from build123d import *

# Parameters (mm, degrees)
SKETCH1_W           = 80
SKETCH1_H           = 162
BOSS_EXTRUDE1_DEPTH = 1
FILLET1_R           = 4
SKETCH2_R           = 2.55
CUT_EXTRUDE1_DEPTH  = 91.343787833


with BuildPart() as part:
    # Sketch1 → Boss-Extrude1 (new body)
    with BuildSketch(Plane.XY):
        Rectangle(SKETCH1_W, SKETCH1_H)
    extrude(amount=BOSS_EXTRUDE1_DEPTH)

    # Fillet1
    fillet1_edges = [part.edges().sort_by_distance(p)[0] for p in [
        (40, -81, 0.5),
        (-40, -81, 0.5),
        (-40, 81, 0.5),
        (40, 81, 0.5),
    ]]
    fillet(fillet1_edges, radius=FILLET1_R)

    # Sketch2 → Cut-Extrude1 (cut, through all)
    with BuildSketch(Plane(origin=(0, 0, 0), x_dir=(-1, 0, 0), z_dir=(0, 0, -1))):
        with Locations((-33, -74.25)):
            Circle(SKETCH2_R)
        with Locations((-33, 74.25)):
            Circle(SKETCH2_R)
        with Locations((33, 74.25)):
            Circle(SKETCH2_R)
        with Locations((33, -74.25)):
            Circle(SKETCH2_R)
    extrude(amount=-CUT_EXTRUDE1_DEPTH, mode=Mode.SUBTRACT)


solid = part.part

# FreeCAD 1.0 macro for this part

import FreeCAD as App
import Part
import Sketcher
Q = App.Units.Quantity


def edges_at(feature, points):
    """Names of the edges that pass closest to the given points."""
    edges = feature.Shape.Edges
    near = lambda p: min(range(len(edges)), key=lambda i: edges[i].distToShape(Part.Vertex(*p))[0])
    return sorted({f"Edge{near(p) + 1}" for p in points})


def add_polygon(sketch, points):
    """Adds a closed chain of lines whose ends are joined by coincident constraints."""
    first, n = sketch.GeometryCount, len(points)
    for a, b in zip(points, points[1:] + points[:1]):
        sketch.addGeometry(Part.LineSegment(App.Vector(*a, 0), App.Vector(*b, 0)), False)
    for i in range(n):
        sketch.addConstraint(Sketcher.Constraint("Coincident", first + i, 2, first + (i + 1) % n, 1))

doc = App.newDocument("Part")
body = doc.addObject("PartDesign::Body", "Body")

sketch1 = doc.addObject("Sketcher::SketchObject", "Sketch")
body.addObject(sketch1)
sketch1.AttachmentSupport = (doc.XY_Plane, [""])
sketch1.MapMode = "FlatFace"
add_polygon(sketch1, [(-40, 81), (-40, -81), (40, -81), (40, 81)])
sketch1.addConstraint([
    Sketcher.Constraint("Vertical", 0),
    Sketcher.Constraint("Horizontal", 1),
    Sketcher.Constraint("Vertical", 2),
    Sketcher.Constraint("Horizontal", 3),
    Sketcher.Constraint("Symmetric", 0, 2, 2, 2, -1, 1),
    Sketcher.Constraint("DistanceX", 1, 1, 1, 2, Q("80 mm")),
    Sketcher.Constraint("DistanceY", 0, 2, 0, 1, Q("162 mm")),
])
pad1 = doc.addObject("PartDesign::Pad", "Pad")
body.addObject(pad1)
pad1.Profile = sketch1
pad1.Length = 1
doc.recompute()

fillet = doc.addObject("PartDesign::Fillet", "Fillet")
body.addObject(fillet)
fillet.Base = (pad1, edges_at(pad1, [
    (40, -81, 0.5),
    (-40, -81, 0.5),
    (-40, 81, 0.5),
    (40, 81, 0.5),
]))
fillet.Radius = 4

sketch2 = doc.addObject("Sketcher::SketchObject", "Sketch001")
body.addObject(sketch2)
sketch2.AttachmentSupport = (doc.XY_Plane, [""])
sketch2.MapMode = "FlatFace"
sketch2.addGeometry([
    Part.Circle(App.Vector(33, -74.2, 0), App.Vector(0, 0, 1), 2.5),
    Part.Circle(App.Vector(33, 74.2, 0), App.Vector(0, 0, 1), 2.5),
    Part.Circle(App.Vector(-33, 74.2, 0), App.Vector(0, 0, 1), 2.5),
    Part.Circle(App.Vector(-33, -74.2, 0), App.Vector(0, 0, 1), 2.5),
], False)
sketch2.addConstraint([
    Sketcher.Constraint("Equal", 0, 1),
    Sketcher.Constraint("Equal", 1, 2),
    Sketcher.Constraint("Equal", 2, 3),
    Sketcher.Constraint("Symmetric", 0, 3, 2, 3, -1, 1),
    Sketcher.Constraint("Symmetric", 1, 3, 3, 3, -1, 1),
    Sketcher.Constraint("Symmetric", 1, 3, 2, 3, -2),
    Sketcher.Constraint("Diameter", 0, Q("5.1 mm")),
    Sketcher.Constraint("DistanceX", -1, 1, 0, 3, Q("33 mm")),
    Sketcher.Constraint("DistanceY", 0, 3, 1, 3, Q("148.5 mm")),
])
pocket1 = doc.addObject("PartDesign::Pocket", "Pocket")
body.addObject(pocket1)
pocket1.Profile = sketch2
pocket1.Type = "ThroughAll"
pocket1.Reversed = True

doc.recompute()
